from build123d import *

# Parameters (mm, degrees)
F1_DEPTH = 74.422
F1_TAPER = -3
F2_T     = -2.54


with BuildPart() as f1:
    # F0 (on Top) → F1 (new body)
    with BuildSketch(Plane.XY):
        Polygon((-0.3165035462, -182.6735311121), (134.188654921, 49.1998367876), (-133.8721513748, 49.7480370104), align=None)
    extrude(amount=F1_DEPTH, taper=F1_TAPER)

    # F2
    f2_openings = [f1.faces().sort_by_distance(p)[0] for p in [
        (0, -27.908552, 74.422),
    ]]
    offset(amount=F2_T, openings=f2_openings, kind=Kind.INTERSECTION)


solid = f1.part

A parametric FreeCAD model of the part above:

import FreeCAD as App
import Part
import Sketcher

V = App.Vector
Q = App.Units.Quantity


def faces_at(feature, points):
    """Names of the faces that lie closest to the given points."""
    faces = feature.Shape.Faces
    near = lambda p: min(range(len(faces)), key=lambda i: faces[i].distToShape(Part.Vertex(*p))[0])
    return sorted({f"Face{near(p) + 1}" for p in points})

doc = App.newDocument("Part")
params = doc.addObject("Spreadsheet::Sheet", "Params")
for row, (alias, value) in enumerate([
    ("pad1_length", "2.93 in"),
    ("pad1_taper", "3 deg"),
    ("thickness_wall", "0.1 in"),
], start=1):
    params.set(f"A{row}", alias)
    params.set(f"B{row}", "=" + value)
    params.setAlias(f"B{row}", alias)

body = doc.addObject("PartDesign::Body", "Body")

sketch1 = body.newObject("Sketcher::SketchObject", "Sketch")
sketch1.AttachmentSupport = (doc.getObject("XY_Plane"), [""])
sketch1.MapMode = "FlatFace"
sketch1.addGeometry([
    Part.LineSegment(V(0, -183, 0), V(134, 49, 0)),
    Part.LineSegment(V(134, 49, 0), V(-134, 50, 0)),
    Part.LineSegment(V(-134, 50, 0), V(0, -183, 0)),
], False)
sketch1.addConstraint([
    Sketcher.Constraint("Coincident", 0, 2, 1, 1),
    Sketcher.Constraint("Coincident", 1, 2, 2, 1),
    Sketcher.Constraint("Coincident", 2, 2, 0, 1),
    Sketcher.Constraint("Equal", 0, 1),
    Sketcher.Constraint("Equal", 1, 2),
    Sketcher.Constraint("DistanceY", 0, 2, 1, 2, Q("0.5482 mm")),
    Sketcher.Constraint("DistanceX", 1, 2, -1, 1, Q("133.872151 mm")),
    Sketcher.Constraint("DistanceY", 2, 2, -1, 1, Q("182.673531 mm")),
    Sketcher.Constraint("DistanceY", 2, 2, 1, 2, Q("232.421568 mm")),
])
pad1 = body.newObject("PartDesign::Pad", "Pad")
pad1.Profile = sketch1
pad1.setExpression("Length", "Params.pad1_length")
pad1.setExpression("TaperAngle", "Params.pad1_taper")
doc.recompute()

thickness = body.newObject("PartDesign::Thickness", "Thickness")
thickness.Base = (pad1, faces_at(pad1, [(35.238, -7.66, 74.422)]))
thickness.setExpression("Value", "Params.thickness_wall")
thickness.Reversed = True
thickness.Join = "Intersection"

doc.recompute()
